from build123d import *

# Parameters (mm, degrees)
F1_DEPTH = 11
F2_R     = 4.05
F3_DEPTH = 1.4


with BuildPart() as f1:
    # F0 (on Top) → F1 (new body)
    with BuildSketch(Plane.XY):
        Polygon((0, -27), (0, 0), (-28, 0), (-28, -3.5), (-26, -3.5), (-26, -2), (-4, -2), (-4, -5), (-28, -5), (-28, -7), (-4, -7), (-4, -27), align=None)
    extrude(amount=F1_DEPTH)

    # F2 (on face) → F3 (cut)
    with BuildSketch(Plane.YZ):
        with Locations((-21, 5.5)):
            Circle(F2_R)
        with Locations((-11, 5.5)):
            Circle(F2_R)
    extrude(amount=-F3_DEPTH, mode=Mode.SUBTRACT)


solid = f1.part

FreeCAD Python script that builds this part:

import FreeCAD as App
import Part
import Sketcher
Q = App.Units.Quantity


def add_polygon(sketch, points):
    """Adds a closed chain of lines whose ends are joined by coincident constraints."""
    first, n = sketch.GeometryCount, len(points)
    for a, b in zip(points, points[1:] + points[:1]):
        sketch.addGeometry(Part.LineSegment(App.Vector(*a, 0), App.Vector(*b, 0)), False)
    for i in range(n):
        sketch.addConstraint(Sketcher.Constraint("Coincident", first + i, 2, first + (i + 1) % n, 1))

doc = App.newDocument("Part")
params = doc.addObject("Spreadsheet::Sheet", "Params")
for row, (alias, value) in enumerate([
    ("sketch1_width", "28 mm"),
    ("sketch1_width2", "2 mm"),
    ("sketch1_width3", "22 mm"),
    ("sketch1_height", "27 mm"),
    ("sketch1_height2", "3 mm"),
    ("pad1_length", "11 mm"),
    ("sketch2_diameter", "8.1 mm"),
    ("pocket1_length", "1.4 mm"),
], start=1):
    params.set(f"A{row}", alias)
    params.set(f"B{row}", "=" + value)
    params.setAlias(f"B{row}", alias)

body = doc.addObject("PartDesign::Body", "Body")

# Sketch on XY plane
sketch1 = doc.addObject("Sketcher::SketchObject", "Sketch")
body.addObject(sketch1)
sketch1.AttachmentSupport = (doc.XY_Plane, [""])
sketch1.MapMode = "FlatFace"
add_polygon(sketch1, [(0, -27), (0, 0), (-28, 0), (-28, -3.5), (-26, -3.5), (-26, -2), (-4, -2), (-4, -5), (-28, -5), (-28, -7), (-4, -7), (-4, -27)])  # lines 0-11
sketch1.addConstraint(Sketcher.Constraint("Vertical", 0))
sketch1.addConstraint(Sketcher.Constraint("Horizontal", 1))
sketch1.addConstraint(Sketcher.Constraint("Vertical", 2))
sketch1.addConstraint(Sketcher.Constraint("Horizontal", 3))
sketch1.addConstraint(Sketcher.Constraint("Vertical", 4))
sketch1.addConstraint(Sketcher.Constraint("Horizontal", 5))
sketch1.addConstraint(Sketcher.Constraint("Vertical", 6))
sketch1.addConstraint(Sketcher.Constraint("Horizontal", 7))
sketch1.addConstraint(Sketcher.Constraint("Vertical", 8))
sketch1.addConstraint(Sketcher.Constraint("Horizontal", 9))
sketch1.addConstraint(Sketcher.Constraint("Vertical", 10))
sketch1.addConstraint(Sketcher.Constraint("Horizontal", 11))
sketch1.addConstraint(Sketcher.Constraint("Coincident", 0, 2, -1, 1))
sketch1.addConstraint(Sketcher.Constraint("Vertical", 2, 2, 7, 2))
sketch1.addConstraint(Sketcher.Constraint("Vertical", 6, 2, 9, 2))
sketch1.addConstraint(Sketcher.Constraint("Equal", 3, 8))
sketch1.addConstraint(Sketcher.Constraint("DistanceX", 1, 2, 1, 1, Q("28 mm")))
sketch1.addConstraint(Sketcher.Constraint("DistanceX", 3, 1, 3, 2, Q("2 mm")))
sketch1.addConstraint(Sketcher.Constraint("DistanceX", 5, 1, 5, 2, Q("22 mm")))
sketch1.addConstraint(Sketcher.Constraint("DistanceY", 0, 1, 0, 2, Q("27 mm")))
sketch1.addConstraint(Sketcher.Constraint("DistanceY", 6, 2, 6, 1, Q("3 mm")))
sketch1.addConstraint(Sketcher.Constraint("DistanceY", 10, 2, 10, 1, Q("20 mm")))
sketch1.addConstraint(Sketcher.Constraint("DistanceY", 2, 2, 2, 1, Q("3.5 mm")))
sketch1.setExpression("Constraints[28]", "Params.sketch1_width")
sketch1.setExpression("Constraints[29]", "Params.sketch1_width2")
sketch1.setExpression("Constraints[30]", "Params.sketch1_width3")
sketch1.setExpression("Constraints[31]", "Params.sketch1_height")
sketch1.setExpression("Constraints[32]", "Params.sketch1_height2")
pad1 = doc.addObject("PartDesign::Pad", "Pad")
body.addObject(pad1)
pad1.Profile = sketch1
pad1.setExpression("Length", "Params.pad1_length")

# Sketch on YZ plane
sketch2 = doc.addObject("Sketcher::SketchObject", "Sketch001")
body.addObject(sketch2)
sketch2.AttachmentSupport = (doc.YZ_Plane, [""])
sketch2.MapMode = "FlatFace"
sketch2.addGeometry(Part.Circle(App.Vector(-21, 5.5, 0), App.Vector(0, 0, 1), 4), False)
sketch2.addGeometry(Part.Circle(App.Vector(-11, 5.5, 0), App.Vector(0, 0, 1), 4), False)
sketch2.addConstraint(Sketcher.Constraint("Equal", 0, 1))
sketch2.addConstraint(Sketcher.Constraint("Horizontal", 0, 3, 1, 3))
sketch2.addConstraint(Sketcher.Constraint("Diameter", 0, Q("8.1 mm")))
sketch2.addConstraint(Sketcher.Constraint("DistanceX", 0, 3, -1, 1, Q("21 mm")))
sketch2.addConstraint(Sketcher.Constraint("DistanceX", 1, 3, -1, 1, Q("11 mm")))
sketch2.addConstraint(Sketcher.Constraint("DistanceY", -1, 1, 0, 3, Q("5.5 mm")))
sketch2.setExpression("Constraints[2]", "Params.sketch2_diameter")
pocket1 = doc.addObject("PartDesign::Pocket", "Pocket")
body.addObject(pocket1)
pocket1.Profile = sketch2
pocket1.setExpression("Length", "Params.pocket1_length")

doc.recompute()
